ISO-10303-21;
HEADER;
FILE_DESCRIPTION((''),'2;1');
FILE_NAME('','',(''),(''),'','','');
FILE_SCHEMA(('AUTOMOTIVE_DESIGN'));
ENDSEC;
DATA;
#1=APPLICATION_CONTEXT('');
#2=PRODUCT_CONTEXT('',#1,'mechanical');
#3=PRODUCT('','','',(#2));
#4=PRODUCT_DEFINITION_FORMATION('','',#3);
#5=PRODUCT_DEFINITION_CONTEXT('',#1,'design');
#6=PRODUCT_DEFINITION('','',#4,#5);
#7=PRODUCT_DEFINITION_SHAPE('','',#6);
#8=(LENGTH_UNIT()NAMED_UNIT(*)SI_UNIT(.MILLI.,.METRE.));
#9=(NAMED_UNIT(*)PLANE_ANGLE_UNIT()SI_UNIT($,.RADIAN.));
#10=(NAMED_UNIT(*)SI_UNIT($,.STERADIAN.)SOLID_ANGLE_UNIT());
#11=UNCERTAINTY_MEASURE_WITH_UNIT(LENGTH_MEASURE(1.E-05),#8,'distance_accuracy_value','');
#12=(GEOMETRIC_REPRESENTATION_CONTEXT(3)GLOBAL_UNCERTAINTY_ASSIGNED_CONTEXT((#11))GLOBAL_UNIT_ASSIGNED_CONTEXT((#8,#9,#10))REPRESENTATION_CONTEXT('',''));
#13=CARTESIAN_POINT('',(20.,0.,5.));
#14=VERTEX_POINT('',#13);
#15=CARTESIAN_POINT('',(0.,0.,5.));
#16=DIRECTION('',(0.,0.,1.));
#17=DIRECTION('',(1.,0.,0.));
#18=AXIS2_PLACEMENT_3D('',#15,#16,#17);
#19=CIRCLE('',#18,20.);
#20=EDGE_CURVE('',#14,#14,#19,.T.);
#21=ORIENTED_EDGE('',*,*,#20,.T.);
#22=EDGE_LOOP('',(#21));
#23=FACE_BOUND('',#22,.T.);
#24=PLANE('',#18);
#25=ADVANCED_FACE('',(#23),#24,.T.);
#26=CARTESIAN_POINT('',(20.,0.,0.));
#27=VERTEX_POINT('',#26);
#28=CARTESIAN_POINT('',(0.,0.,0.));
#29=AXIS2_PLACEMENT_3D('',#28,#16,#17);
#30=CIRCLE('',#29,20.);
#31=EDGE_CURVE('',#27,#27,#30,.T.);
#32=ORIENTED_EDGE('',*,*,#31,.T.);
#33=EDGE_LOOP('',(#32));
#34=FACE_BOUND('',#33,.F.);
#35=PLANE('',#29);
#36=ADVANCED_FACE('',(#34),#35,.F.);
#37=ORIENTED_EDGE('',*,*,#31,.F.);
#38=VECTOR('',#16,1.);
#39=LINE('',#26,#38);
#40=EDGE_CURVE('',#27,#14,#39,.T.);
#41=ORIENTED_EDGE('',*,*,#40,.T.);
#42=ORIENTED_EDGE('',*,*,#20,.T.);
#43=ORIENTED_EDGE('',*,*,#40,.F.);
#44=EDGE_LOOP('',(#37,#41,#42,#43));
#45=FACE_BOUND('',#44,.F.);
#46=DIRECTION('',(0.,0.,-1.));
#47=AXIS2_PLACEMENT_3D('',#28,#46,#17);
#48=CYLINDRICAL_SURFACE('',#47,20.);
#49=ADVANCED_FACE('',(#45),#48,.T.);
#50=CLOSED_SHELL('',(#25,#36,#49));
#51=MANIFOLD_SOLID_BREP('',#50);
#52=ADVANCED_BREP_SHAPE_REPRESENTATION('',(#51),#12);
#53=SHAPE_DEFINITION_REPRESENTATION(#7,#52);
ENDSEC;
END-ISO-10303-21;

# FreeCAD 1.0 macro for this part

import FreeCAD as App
import Part
import Sketcher
from FreeCAD import Vector
Q = App.Units.Quantity

doc = App.newDocument("Part")
params = doc.addObject("Spreadsheet::Sheet", "Params")
for row, (alias, value) in enumerate([
    ("sketch1_diameter", "40 mm"),
    ("pad1_length", "5 mm"),
], start=1):
    params.set(f"A{row}", alias)
    params.set(f"B{row}", "=" + value)
    params.setAlias(f"B{row}", alias)

body = doc.addObject("PartDesign::Body", "Body")

# Sketch on XY plane
sketch1 = body.newObject("Sketcher::SketchObject", "Sketch")
sketch1.AttachmentSupport = (doc.getObject("XY_Plane"), [""])
sketch1.MapMode = "FlatFace"
sketch1.addGeometry(Part.Circle(Vector(0, 0, 0), Vector(0, 0, 1), 20), False)
sketch1.addConstraint(Sketcher.Constraint("Coincident", 0, 3, -1, 1))
sketch1.addConstraint(Sketcher.Constraint("Diameter", 0, Q("40 mm")))
sketch1.setExpression("Constraints[1]", "Params.sketch1_diameter")
pad1 = body.newObject("PartDesign::Pad", "Pad")
pad1.Profile = sketch1
pad1.setExpression("Length", "Params.pad1_length")

doc.recompute()
